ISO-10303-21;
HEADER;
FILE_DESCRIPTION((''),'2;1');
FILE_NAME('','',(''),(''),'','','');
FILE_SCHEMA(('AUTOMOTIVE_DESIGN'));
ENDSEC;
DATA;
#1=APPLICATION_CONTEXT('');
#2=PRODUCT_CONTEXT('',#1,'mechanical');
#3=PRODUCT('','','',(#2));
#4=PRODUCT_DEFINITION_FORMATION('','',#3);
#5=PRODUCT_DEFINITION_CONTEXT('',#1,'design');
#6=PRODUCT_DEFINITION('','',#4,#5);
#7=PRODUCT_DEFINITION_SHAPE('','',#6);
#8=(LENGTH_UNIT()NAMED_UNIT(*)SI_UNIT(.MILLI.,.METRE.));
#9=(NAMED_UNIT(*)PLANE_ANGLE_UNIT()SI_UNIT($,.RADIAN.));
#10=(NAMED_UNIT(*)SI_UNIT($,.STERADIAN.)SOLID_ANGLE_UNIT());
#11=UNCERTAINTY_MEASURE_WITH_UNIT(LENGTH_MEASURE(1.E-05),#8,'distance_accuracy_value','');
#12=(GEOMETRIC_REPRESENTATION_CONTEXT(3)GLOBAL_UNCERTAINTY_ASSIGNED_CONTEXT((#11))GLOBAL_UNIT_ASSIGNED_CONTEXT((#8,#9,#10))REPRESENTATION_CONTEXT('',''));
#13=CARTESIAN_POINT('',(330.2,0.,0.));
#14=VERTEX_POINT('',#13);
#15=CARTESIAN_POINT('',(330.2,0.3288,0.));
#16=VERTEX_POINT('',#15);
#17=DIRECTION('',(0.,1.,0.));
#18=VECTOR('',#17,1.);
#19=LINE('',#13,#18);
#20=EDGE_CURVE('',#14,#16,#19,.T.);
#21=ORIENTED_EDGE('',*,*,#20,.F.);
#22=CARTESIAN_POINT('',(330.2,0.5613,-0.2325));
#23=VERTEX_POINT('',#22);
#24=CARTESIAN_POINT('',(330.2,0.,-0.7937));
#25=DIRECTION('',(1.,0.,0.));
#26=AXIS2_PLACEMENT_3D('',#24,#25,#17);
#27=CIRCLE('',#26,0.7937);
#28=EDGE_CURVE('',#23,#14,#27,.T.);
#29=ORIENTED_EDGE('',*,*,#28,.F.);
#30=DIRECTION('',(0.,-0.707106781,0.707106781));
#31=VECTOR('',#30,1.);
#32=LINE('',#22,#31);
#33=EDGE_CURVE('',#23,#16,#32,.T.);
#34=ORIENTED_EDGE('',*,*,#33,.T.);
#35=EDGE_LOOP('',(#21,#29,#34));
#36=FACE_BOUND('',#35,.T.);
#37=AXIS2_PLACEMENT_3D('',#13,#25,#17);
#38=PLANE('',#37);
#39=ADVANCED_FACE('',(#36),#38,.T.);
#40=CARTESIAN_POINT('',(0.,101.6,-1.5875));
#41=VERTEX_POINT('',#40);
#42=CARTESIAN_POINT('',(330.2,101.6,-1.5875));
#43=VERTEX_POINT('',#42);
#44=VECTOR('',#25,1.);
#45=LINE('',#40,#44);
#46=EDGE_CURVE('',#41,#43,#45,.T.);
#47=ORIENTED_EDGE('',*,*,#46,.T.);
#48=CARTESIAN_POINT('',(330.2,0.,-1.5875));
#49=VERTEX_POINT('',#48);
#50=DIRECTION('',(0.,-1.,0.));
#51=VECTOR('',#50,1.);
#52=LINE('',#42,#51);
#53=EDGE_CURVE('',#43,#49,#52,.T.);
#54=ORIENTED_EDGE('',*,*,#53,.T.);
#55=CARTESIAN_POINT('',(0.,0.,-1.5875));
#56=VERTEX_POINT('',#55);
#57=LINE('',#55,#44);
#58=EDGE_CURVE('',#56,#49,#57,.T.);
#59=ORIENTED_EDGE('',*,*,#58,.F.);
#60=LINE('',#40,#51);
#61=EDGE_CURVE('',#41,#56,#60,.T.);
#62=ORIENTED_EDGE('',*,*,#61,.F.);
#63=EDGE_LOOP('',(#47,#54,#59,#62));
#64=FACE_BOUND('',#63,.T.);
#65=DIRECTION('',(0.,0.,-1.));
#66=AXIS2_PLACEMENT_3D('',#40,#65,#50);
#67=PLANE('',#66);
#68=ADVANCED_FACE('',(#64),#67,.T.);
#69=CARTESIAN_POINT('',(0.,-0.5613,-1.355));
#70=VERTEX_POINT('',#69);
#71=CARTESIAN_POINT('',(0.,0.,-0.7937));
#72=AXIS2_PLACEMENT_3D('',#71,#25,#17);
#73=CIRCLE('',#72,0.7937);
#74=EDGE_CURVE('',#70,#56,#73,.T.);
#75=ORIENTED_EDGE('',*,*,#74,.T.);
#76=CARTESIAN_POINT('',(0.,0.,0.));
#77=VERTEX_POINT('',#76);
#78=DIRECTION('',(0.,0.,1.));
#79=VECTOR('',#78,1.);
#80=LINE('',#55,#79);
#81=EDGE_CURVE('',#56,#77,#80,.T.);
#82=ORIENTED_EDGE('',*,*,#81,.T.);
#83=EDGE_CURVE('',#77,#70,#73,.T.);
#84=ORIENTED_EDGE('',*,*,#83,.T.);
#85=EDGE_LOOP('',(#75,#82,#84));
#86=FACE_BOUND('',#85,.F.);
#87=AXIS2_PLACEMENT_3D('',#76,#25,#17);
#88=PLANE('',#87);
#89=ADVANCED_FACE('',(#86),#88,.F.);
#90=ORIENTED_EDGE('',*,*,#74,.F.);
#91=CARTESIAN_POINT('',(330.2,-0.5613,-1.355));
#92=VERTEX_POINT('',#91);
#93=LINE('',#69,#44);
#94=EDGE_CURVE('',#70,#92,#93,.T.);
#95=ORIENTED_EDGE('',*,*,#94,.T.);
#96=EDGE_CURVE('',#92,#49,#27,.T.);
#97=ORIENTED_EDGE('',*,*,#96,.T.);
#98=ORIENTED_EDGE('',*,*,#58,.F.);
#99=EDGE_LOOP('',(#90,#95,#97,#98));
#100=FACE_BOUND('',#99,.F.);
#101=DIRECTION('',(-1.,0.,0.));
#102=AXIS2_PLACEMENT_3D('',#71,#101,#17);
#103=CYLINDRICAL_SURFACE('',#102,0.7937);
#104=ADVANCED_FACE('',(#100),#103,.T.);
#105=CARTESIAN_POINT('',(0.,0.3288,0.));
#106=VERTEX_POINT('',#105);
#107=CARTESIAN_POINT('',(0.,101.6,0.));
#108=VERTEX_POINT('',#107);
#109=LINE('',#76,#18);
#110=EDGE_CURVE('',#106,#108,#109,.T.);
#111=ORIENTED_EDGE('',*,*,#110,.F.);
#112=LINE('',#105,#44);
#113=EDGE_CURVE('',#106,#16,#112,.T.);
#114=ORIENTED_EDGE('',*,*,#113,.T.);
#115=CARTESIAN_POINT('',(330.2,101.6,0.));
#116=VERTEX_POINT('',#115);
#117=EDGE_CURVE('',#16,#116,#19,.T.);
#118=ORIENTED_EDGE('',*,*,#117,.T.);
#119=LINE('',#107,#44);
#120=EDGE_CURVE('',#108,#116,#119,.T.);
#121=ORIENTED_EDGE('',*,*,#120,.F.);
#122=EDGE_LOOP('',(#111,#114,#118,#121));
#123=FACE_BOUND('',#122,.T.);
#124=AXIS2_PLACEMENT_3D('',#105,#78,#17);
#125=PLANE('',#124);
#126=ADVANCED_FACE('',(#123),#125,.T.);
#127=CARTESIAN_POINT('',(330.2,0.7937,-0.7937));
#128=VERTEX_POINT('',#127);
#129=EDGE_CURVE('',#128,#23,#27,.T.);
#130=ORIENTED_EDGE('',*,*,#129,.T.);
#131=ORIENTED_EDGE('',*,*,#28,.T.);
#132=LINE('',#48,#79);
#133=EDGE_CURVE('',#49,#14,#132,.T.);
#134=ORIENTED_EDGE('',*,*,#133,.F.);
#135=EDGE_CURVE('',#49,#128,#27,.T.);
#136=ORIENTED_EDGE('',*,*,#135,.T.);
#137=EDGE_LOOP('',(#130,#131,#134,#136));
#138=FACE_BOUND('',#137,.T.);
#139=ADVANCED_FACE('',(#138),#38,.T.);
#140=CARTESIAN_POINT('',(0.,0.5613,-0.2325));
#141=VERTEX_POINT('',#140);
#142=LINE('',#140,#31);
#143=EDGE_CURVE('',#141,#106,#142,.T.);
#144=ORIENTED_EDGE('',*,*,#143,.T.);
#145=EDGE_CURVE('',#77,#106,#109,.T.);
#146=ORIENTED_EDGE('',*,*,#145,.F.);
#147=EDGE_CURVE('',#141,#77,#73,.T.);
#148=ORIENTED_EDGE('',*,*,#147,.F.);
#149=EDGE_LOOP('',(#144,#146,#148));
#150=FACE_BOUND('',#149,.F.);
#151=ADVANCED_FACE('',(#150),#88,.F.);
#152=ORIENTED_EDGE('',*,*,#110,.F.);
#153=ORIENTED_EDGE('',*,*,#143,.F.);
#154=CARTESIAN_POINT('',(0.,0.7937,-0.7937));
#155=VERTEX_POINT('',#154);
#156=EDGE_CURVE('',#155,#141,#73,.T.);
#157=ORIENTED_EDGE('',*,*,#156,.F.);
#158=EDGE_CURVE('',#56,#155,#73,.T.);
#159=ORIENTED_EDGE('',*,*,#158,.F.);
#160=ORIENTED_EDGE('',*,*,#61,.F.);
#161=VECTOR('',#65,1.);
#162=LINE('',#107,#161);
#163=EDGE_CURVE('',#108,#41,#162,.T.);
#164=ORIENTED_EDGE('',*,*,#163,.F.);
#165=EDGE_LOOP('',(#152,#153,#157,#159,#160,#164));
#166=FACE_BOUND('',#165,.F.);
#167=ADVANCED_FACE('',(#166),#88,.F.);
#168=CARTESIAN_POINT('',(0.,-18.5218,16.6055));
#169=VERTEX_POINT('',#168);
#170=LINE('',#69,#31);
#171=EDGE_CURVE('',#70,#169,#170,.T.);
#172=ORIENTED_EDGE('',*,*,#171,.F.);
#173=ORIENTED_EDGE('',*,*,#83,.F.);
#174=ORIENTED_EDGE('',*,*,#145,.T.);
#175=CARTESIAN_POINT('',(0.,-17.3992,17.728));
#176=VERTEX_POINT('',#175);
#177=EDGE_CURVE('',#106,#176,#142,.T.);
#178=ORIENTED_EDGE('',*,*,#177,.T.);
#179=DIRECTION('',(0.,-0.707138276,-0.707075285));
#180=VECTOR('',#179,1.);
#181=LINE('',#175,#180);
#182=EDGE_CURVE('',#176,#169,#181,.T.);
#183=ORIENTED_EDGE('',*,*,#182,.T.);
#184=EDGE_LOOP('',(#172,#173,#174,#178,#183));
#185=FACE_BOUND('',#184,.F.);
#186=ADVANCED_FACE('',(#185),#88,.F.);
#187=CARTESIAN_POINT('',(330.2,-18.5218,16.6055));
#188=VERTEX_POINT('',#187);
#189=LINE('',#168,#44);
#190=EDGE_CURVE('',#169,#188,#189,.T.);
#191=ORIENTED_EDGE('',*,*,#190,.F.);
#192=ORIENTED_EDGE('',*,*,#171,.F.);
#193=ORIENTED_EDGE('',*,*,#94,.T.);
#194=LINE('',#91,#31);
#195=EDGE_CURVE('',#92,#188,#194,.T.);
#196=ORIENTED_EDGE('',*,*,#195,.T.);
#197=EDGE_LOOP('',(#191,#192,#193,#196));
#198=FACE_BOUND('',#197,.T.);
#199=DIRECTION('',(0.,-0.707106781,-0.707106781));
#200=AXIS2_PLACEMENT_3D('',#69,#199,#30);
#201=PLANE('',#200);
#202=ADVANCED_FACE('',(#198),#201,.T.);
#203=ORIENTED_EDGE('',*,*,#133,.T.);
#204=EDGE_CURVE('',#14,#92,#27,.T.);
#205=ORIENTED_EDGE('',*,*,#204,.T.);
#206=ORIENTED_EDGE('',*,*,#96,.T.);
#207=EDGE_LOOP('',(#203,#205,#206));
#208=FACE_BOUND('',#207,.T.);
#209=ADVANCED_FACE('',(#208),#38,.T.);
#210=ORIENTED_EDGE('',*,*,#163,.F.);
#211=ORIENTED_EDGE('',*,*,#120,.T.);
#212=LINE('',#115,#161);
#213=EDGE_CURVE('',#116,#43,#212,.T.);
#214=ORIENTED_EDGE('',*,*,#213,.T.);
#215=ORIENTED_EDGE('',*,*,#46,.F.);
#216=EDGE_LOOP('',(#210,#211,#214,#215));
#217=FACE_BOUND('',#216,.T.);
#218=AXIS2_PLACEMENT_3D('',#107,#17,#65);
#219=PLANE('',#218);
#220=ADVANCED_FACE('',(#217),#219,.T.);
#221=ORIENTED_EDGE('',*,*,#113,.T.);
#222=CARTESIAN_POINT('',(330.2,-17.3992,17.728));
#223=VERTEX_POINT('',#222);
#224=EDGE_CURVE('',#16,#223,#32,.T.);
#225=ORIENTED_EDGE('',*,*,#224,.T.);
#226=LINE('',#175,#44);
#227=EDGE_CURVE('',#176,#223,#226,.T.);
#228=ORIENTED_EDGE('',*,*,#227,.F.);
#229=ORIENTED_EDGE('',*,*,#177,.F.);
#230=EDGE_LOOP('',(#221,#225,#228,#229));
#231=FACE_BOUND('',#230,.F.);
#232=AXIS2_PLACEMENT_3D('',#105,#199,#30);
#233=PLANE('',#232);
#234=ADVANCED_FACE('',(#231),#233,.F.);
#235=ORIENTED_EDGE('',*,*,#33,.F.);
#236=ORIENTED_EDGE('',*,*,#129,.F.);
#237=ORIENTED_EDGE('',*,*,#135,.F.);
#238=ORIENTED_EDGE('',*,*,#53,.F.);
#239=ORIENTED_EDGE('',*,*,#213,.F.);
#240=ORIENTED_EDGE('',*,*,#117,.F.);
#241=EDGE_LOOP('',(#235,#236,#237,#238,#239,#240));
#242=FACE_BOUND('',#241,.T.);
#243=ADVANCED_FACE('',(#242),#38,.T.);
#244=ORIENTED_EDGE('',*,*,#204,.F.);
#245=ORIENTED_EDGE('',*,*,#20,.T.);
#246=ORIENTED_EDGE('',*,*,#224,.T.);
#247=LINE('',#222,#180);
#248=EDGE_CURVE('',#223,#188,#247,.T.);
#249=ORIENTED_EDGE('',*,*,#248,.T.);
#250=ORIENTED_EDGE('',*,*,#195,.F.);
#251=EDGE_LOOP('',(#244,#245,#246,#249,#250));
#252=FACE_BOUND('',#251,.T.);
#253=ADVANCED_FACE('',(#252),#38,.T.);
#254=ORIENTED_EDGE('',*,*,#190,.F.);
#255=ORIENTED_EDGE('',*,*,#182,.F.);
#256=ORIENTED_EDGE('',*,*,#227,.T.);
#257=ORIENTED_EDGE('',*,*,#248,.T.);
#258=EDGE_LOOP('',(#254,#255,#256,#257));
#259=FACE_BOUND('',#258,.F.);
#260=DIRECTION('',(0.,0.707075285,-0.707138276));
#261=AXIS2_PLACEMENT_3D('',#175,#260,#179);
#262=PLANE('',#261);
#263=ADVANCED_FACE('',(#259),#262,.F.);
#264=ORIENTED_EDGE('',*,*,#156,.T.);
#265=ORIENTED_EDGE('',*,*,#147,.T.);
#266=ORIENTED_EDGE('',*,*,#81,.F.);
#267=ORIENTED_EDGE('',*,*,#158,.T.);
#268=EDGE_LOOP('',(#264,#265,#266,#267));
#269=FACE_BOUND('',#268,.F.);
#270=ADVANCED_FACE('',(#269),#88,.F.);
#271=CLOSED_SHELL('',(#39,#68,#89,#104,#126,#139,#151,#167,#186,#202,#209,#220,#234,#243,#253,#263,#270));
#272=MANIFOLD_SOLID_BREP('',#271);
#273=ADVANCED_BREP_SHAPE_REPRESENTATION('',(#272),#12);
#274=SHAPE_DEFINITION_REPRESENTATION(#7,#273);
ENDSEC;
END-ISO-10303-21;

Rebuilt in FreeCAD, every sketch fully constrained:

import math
import FreeCAD as App
import Part
import Sketcher
from FreeCAD import Vector
Q = App.Units.Quantity

doc = App.newDocument("Part")
body = doc.addObject("PartDesign::Body", "Body")

sketch1 = doc.addObject("Sketcher::SketchObject", "Sketch")
body.addObject(sketch1)
sketch1.AttachmentSupport = (doc.YZ_Plane, [""])
sketch1.MapMode = "FlatFace"
sketch1.addGeometry([
    Part.LineSegment(Vector(-18.5218, 16.6055, 0), Vector(-0.5613, -1.355, 0)),
    Part.ArcOfCircle(Part.Circle(Vector(0, -0.7937, 0), Vector(0, 0, 1), 0.7937), math.radians(-135), math.radians(-90)),
    Part.LineSegment(Vector(0, -1.5875, 0), Vector(101.6, -1.5875, 0)),
    Part.LineSegment(Vector(101.6, -1.5875, 0), Vector(101.6, 0, 0)),
    Part.LineSegment(Vector(101.6, 0, 0), Vector(0.3288, 0, 0)),
    Part.LineSegment(Vector(0.3288, 0, 0), Vector(-17.3992, 17.728, 0)),
    Part.LineSegment(Vector(-17.3992, 17.728, 0), Vector(-18.5218, 16.6055, 0)),
], False)
sketch1.addConstraint([
    Sketcher.Constraint("Tangent", 0, 2, 1, 1),
    Sketcher.Constraint("Tangent", 1, 2, 2, 1),
    Sketcher.Constraint("Coincident", 2, 2, 3, 1),
    Sketcher.Constraint("Coincident", 3, 2, 4, 1),
    Sketcher.Constraint("Coincident", 4, 2, 5, 1),
    Sketcher.Constraint("Coincident", 5, 2, 6, 1),
    Sketcher.Constraint("Coincident", 6, 2, 0, 1),
    Sketcher.Constraint("Horizontal", 2),
    Sketcher.Constraint("Vertical", 3),
    Sketcher.Constraint("Horizontal", 4),
    Sketcher.Constraint("PointOnObject", 1, 3, -2),
    Sketcher.Constraint("PointOnObject", 3, 2, -1),
    Sketcher.Constraint("Parallel", 0, 5),
    Sketcher.Constraint("Perpendicular", 5, 6),
    Sketcher.Constraint("DistanceX", 2, 1, 2, 2, Q("4 in")),
    Sketcher.Constraint("Distance", 0, Q("1 in")),
    Sketcher.Constraint("Angle", 5, Q("135 deg")),
    Sketcher.Constraint("Radius", 1, Q("0.031248 in")),
    Sketcher.Constraint("DistanceY", 3, 1, 3, 2, Q("0.0625 in")),
    Sketcher.Constraint("Distance", 6, Q("0.0625 in")),
])
pad1 = doc.addObject("PartDesign::Pad", "Pad")
body.addObject(pad1)
pad1.Profile = sketch1
pad1.Length = Q("13 in")

doc.recompute()
